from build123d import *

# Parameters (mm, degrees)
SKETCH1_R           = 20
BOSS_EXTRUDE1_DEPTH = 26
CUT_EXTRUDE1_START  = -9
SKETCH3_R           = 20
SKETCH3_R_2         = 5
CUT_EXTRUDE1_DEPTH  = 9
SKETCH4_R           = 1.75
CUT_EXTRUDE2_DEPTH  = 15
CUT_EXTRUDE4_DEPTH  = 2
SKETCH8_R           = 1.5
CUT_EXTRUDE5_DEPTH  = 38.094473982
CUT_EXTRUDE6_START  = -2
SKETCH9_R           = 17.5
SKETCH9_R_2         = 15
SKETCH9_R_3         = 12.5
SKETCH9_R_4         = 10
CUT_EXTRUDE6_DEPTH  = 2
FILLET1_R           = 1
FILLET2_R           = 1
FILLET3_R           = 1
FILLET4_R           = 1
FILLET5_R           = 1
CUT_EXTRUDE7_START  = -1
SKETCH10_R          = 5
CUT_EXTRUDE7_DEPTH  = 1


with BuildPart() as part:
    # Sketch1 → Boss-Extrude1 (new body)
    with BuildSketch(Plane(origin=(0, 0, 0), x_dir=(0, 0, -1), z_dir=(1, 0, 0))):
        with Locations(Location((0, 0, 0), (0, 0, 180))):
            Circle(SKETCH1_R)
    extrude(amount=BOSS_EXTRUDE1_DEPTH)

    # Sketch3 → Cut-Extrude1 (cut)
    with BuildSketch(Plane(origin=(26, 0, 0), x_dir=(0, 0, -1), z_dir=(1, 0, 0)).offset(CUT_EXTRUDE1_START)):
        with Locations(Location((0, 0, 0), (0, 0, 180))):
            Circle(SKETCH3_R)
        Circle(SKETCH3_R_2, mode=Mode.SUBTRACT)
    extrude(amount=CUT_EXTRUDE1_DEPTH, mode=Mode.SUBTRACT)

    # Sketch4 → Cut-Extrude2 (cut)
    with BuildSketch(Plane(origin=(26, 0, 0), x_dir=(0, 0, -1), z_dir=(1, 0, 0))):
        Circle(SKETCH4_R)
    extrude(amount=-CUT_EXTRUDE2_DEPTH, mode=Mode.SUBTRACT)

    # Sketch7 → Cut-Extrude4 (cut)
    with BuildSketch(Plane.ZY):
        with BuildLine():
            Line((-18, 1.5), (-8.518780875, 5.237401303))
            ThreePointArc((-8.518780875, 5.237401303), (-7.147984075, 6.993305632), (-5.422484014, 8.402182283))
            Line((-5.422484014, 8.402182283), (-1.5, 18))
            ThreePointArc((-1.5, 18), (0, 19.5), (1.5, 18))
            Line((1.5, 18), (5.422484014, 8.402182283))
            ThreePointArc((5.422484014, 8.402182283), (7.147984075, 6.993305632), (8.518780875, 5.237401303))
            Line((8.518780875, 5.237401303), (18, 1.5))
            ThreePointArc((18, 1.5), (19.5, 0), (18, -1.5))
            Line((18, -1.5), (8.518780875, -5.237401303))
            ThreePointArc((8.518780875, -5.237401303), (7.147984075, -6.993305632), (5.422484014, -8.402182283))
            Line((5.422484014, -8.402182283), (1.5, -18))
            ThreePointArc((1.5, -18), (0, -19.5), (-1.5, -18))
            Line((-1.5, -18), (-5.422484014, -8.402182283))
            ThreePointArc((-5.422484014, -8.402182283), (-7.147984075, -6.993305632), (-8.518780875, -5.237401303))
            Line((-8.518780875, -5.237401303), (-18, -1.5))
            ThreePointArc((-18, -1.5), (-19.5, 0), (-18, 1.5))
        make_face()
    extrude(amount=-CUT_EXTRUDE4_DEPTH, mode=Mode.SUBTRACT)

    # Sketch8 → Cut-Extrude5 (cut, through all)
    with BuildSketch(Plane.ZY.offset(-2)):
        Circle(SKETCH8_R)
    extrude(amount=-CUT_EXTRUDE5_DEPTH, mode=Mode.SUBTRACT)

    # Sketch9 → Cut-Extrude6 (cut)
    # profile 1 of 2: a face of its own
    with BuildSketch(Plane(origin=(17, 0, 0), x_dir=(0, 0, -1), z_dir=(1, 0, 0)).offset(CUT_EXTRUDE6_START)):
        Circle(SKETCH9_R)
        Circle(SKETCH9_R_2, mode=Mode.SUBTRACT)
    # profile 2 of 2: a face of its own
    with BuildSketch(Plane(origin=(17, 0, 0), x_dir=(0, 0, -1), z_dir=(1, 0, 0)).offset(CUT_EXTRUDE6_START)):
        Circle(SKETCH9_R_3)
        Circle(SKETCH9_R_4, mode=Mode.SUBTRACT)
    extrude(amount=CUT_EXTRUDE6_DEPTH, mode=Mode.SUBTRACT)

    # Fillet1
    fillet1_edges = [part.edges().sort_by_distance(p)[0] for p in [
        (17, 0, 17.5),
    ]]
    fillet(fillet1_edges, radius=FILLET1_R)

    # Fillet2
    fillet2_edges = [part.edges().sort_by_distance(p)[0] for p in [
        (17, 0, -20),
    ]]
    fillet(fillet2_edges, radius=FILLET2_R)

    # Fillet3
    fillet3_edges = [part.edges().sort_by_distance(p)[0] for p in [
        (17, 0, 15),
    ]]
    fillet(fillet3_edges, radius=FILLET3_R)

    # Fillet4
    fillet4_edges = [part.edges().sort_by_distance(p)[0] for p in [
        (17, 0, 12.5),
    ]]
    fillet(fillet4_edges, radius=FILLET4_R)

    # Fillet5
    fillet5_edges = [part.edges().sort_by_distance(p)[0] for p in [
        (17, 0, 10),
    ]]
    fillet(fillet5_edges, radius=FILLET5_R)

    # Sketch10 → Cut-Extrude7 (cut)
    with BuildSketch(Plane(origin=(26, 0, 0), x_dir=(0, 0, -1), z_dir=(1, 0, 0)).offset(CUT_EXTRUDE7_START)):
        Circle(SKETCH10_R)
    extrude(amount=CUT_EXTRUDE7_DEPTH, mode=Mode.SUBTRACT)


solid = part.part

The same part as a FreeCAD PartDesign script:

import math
import FreeCAD as App
import Part
import Sketcher
from FreeCAD import Vector


def edges_at(feature, points):
    """Names of the edges that pass closest to the given points."""
    edges = feature.Shape.Edges
    near = lambda p: min(range(len(edges)), key=lambda i: edges[i].distToShape(Part.Vertex(*p))[0])
    return sorted({f"Edge{near(p) + 1}" for p in points})

doc = App.newDocument("Part")
body = doc.addObject("PartDesign::Body", "Body")

sketch1 = doc.addObject("Sketcher::SketchObject", "Sketch")
body.addObject(sketch1)
sketch1.AttachmentSupport = (doc.YZ_Plane, [""])
sketch1.MapMode = "FlatFace"
sketch1.addGeometry(Part.Circle(Vector(0, 0, 0), Vector(0, 0, 1), 20), False)
sketch1.addConstraint(Sketcher.Constraint("Coincident", 0, 3, -1, 1))
sketch1.addConstraint(Sketcher.Constraint("Diameter", 0, 40.0))
pad1 = doc.addObject("PartDesign::Pad", "Pad")
body.addObject(pad1)
pad1.Profile = sketch1
pad1.Length = 26

sketch2 = doc.addObject("Sketcher::SketchObject", "Sketch001")
body.addObject(sketch2)
sketch2.AttachmentSupport = (doc.YZ_Plane, [""])
sketch2.MapMode = "FlatFace"
sketch2.AttachmentOffset = App.Placement(Vector(0, 0, 17), App.Rotation())
sketch2.addGeometry(Part.Circle(Vector(0, 0, 0), Vector(0, 0, 1), 20), False)
sketch2.addGeometry(Part.Circle(Vector(0, 0, 0), Vector(0, 0, 1), 5), False)
sketch2.addConstraint(Sketcher.Constraint("Coincident", 0, 3, -1, 1))
sketch2.addConstraint(Sketcher.Constraint("Coincident", 1, 3, -1, 1))
sketch2.addConstraint(Sketcher.Constraint("Diameter", 0, 40.0))
sketch2.addConstraint(Sketcher.Constraint("Diameter", 1, 10.0))
pocket1 = doc.addObject("PartDesign::Pocket", "Pocket")
body.addObject(pocket1)
pocket1.Profile = sketch2
pocket1.Length = 9
pocket1.Reversed = True

sketch3 = doc.addObject("Sketcher::SketchObject", "Sketch002")
body.addObject(sketch3)
sketch3.AttachmentSupport = (doc.YZ_Plane, [""])
sketch3.MapMode = "FlatFace"
sketch3.AttachmentOffset = App.Placement(Vector(0, 0, 26), App.Rotation())
sketch3.addGeometry(Part.Circle(Vector(0, 0, 0), Vector(0, 0, 1), 1.8), False)
sketch3.addConstraint(Sketcher.Constraint("Coincident", 0, 3, -1, 1))
sketch3.addConstraint(Sketcher.Constraint("Diameter", 0, 3.5))
pocket2 = doc.addObject("PartDesign::Pocket", "Pocket001")
body.addObject(pocket2)
pocket2.Profile = sketch3
pocket2.Length = 15

sketch4 = doc.addObject("Sketcher::SketchObject", "Sketch003")
body.addObject(sketch4)
sketch4.AttachmentSupport = (doc.YZ_Plane, [""])
sketch4.MapMode = "FlatFace"
sketch4.addGeometry(Part.LineSegment(Vector(5.2, -8.5, 0), Vector(1.5, -18, 0)), False)
sketch4.addGeometry(Part.ArcOfCircle(Part.Circle(Vector(0, -18, 0), Vector(0, 0, 1), 1.5), math.radians(180), math.radians(360)), False)
sketch4.addGeometry(Part.LineSegment(Vector(-1.5, -18, 0), Vector(-5.2, -8.5, 0)), False)
sketch4.addGeometry(Part.ArcOfCircle(Part.Circle(Vector(0, 0, 0), Vector(0, 0, 1), 10), math.radians(-147), math.radians(-122)), False)
sketch4.addGeometry(Part.LineSegment(Vector(-8.4, -5.4, 0), Vector(-18, -1.5, 0)), False)
sketch4.addGeometry(Part.ArcOfCircle(Part.Circle(Vector(-18, 0, 0), Vector(0, 0, 1), 1.5), math.radians(90), math.radians(270)), False)
sketch4.addGeometry(Part.LineSegment(Vector(-18, 1.5, 0), Vector(-8.4, 5.4, 0)), False)
sketch4.addGeometry(Part.ArcOfCircle(Part.Circle(Vector(0, 0, 0), Vector(0, 0, 1), 10), math.radians(122), math.radians(147)), False)
sketch4.addGeometry(Part.LineSegment(Vector(-5.2, 8.5, 0), Vector(-1.5, 18, 0)), False)
sketch4.addGeometry(Part.ArcOfCircle(Part.Circle(Vector(0, 18, 0), Vector(0, 0, 1), 1.5), math.radians(0), math.radians(180)), False)
sketch4.addGeometry(Part.LineSegment(Vector(1.5, 18, 0), Vector(5.2, 8.5, 0)), False)
sketch4.addGeometry(Part.ArcOfCircle(Part.Circle(Vector(0, 0, 0), Vector(0, 0, 1), 10), math.radians(33), math.radians(58)), False)
sketch4.addGeometry(Part.LineSegment(Vector(8.4, 5.4, 0), Vector(18, 1.5, 0)), False)
sketch4.addGeometry(Part.ArcOfCircle(Part.Circle(Vector(18, 0, 0), Vector(0, 0, 1), 1.5), math.radians(-90), math.radians(90)), False)
sketch4.addGeometry(Part.LineSegment(Vector(18, -1.5, 0), Vector(8.4, -5.4, 0)), False)
sketch4.addGeometry(Part.ArcOfCircle(Part.Circle(Vector(0, 0, 0), Vector(0, 0, 1), 10), math.radians(-58), math.radians(-33)), False)
sketch4.addConstraint(Sketcher.Constraint("Coincident", 0, 2, 1, 2))
sketch4.addConstraint(Sketcher.Constraint("Coincident", 1, 1, 2, 1))
sketch4.addConstraint(Sketcher.Constraint("Coincident", 2, 2, 3, 2))
sketch4.addConstraint(Sketcher.Constraint("Coincident", 3, 1, 4, 1))
sketch4.addConstraint(Sketcher.Constraint("Coincident", 4, 2, 5, 2))
sketch4.addConstraint(Sketcher.Constraint("Coincident", 5, 1, 6, 1))
sketch4.addConstraint(Sketcher.Constraint("Coincident", 6, 2, 7, 2))
sketch4.addConstraint(Sketcher.Constraint("Coincident", 7, 1, 8, 1))
sketch4.addConstraint(Sketcher.Constraint("Coincident", 8, 2, 9, 2))
sketch4.addConstraint(Sketcher.Constraint("Coincident", 9, 1, 10, 1))
sketch4.addConstraint(Sketcher.Constraint("Coincident", 10, 2, 11, 2))
sketch4.addConstraint(Sketcher.Constraint("Coincident", 11, 1, 12, 1))
sketch4.addConstraint(Sketcher.Constraint("Coincident", 12, 2, 13, 2))
sketch4.addConstraint(Sketcher.Constraint("Coincident", 13, 1, 14, 1))
sketch4.addConstraint(Sketcher.Constraint("Coincident", 14, 2, 15, 2))
sketch4.addConstraint(Sketcher.Constraint("Coincident", 15, 1, 0, 1))
sketch4.addConstraint(Sketcher.Constraint("Coincident", 3, 3, -1, 1))
sketch4.addConstraint(Sketcher.Constraint("Coincident", 7, 3, -1, 1))
sketch4.addConstraint(Sketcher.Constraint("Coincident", 11, 3, -1, 1))
sketch4.addConstraint(Sketcher.Constraint("Coincident", 15, 3, -1, 1))
sketch4.addConstraint(Sketcher.Constraint("Equal", 1, 5))
sketch4.addConstraint(Sketcher.Constraint("Equal", 3, 7))
sketch4.addConstraint(Sketcher.Constraint("Equal", 5, 9))
sketch4.addConstraint(Sketcher.Constraint("Equal", 7, 11))
sketch4.addConstraint(Sketcher.Constraint("Equal", 9, 13))
sketch4.addConstraint(Sketcher.Constraint("Equal", 11, 15))
sketch4.addConstraint(Sketcher.Constraint("Symmetric", 1, 3, 9, 3, -1, 1))
sketch4.addConstraint(Sketcher.Constraint("Symmetric", 5, 3, 13, 3, -1, 1))
sketch4.addConstraint(Sketcher.Constraint("Symmetric", 0, 2, 1, 1, -2))
sketch4.addConstraint(Sketcher.Constraint("Symmetric", 5, 1, 12, 2, -2))
sketch4.addConstraint(Sketcher.Constraint("Parallel", 0, 8))
sketch4.addConstraint(Sketcher.Constraint("Parallel", 2, 10))
sketch4.addConstraint(Sketcher.Constraint("Parallel", 4, 12))
sketch4.addConstraint(Sketcher.Constraint("Parallel", 6, 14))
sketch4.addConstraint(Sketcher.Constraint("Horizontal", 1, 3, 0, 2))
sketch4.addConstraint(Sketcher.Constraint("Horizontal", 9, 3, 8, 2))
sketch4.addConstraint(Sketcher.Constraint("Horizontal", 8, 2, 9, 1))
sketch4.addConstraint(Sketcher.Constraint("Horizontal", 7, 1, 10, 2))
sketch4.addConstraint(Sketcher.Constraint("Horizontal", 6, 2, 11, 1))
sketch4.addConstraint(Sketcher.Constraint("Horizontal", 3, 1, 14, 2))
sketch4.addConstraint(Sketcher.Constraint("Vertical", 5, 3, 4, 2))
sketch4.addConstraint(Sketcher.Constraint("Vertical", 4, 2, 5, 1))
sketch4.addConstraint(Sketcher.Constraint("Radius", 3, 10.0))
sketch4.addConstraint(Sketcher.Constraint("Radius", 1, 1.5))
sketch4.addConstraint(Sketcher.Constraint("DistanceY", 1, 3, -1, 1, 18.0))
sketch4.addConstraint(Sketcher.Constraint("DistanceX", 5, 3, -1, 1, 18.0))
sketch4.addConstraint(Sketcher.Constraint("DistanceX", 2, 2, -1, 1, 5.237401))
sketch4.addConstraint(Sketcher.Constraint("DistanceX", 3, 1, 2, 2, 3.164781))
pocket3 = doc.addObject("PartDesign::Pocket", "Pocket002")
body.addObject(pocket3)
pocket3.Profile = sketch4
pocket3.Length = 2
pocket3.Reversed = True

sketch5 = doc.addObject("Sketcher::SketchObject", "Sketch004")
body.addObject(sketch5)
sketch5.AttachmentSupport = (doc.YZ_Plane, [""])
sketch5.MapMode = "FlatFace"
sketch5.AttachmentOffset = App.Placement(Vector(0, 0, 2), App.Rotation())
sketch5.addGeometry(Part.Circle(Vector(0, 0, 0), Vector(0, 0, 1), 1.5), False)
sketch5.addConstraint(Sketcher.Constraint("Coincident", 0, 3, -1, 1))
sketch5.addConstraint(Sketcher.Constraint("Diameter", 0, 3.0))
pocket4 = doc.addObject("PartDesign::Pocket", "Pocket003")
body.addObject(pocket4)
pocket4.Profile = sketch5
pocket4.Type = "ThroughAll"
pocket4.Reversed = True

sketch6 = doc.addObject("Sketcher::SketchObject", "Sketch005")
body.addObject(sketch6)
sketch6.AttachmentSupport = (doc.YZ_Plane, [""])
sketch6.MapMode = "FlatFace"
sketch6.AttachmentOffset = App.Placement(Vector(0, 0, 15), App.Rotation())
sketch6.addGeometry(Part.Circle(Vector(0, 0, 0), Vector(0, 0, 1), 18), False)
sketch6.addGeometry(Part.Circle(Vector(0, 0, 0), Vector(0, 0, 1), 15), False)
sketch6.addGeometry(Part.Circle(Vector(0, 0, 0), Vector(0, 0, 1), 12), False)
sketch6.addGeometry(Part.Circle(Vector(0, 0, 0), Vector(0, 0, 1), 10), False)
sketch6.addConstraint(Sketcher.Constraint("Coincident", 0, 3, -1, 1))
sketch6.addConstraint(Sketcher.Constraint("Coincident", 1, 3, -1, 1))
sketch6.addConstraint(Sketcher.Constraint("Coincident", 2, 3, -1, 1))
sketch6.addConstraint(Sketcher.Constraint("Coincident", 3, 3, -1, 1))
sketch6.addConstraint(Sketcher.Constraint("Diameter", 0, 35.0))
sketch6.addConstraint(Sketcher.Constraint("Diameter", 1, 30.0))
sketch6.addConstraint(Sketcher.Constraint("Diameter", 2, 25.0))
sketch6.addConstraint(Sketcher.Constraint("Diameter", 3, 20.0))
pocket5 = doc.addObject("PartDesign::Pocket", "Pocket004")
body.addObject(pocket5)
pocket5.Profile = sketch6
pocket5.Length = 2
pocket5.Reversed = True
doc.recompute()

fillet = doc.addObject("PartDesign::Fillet", "Fillet")
body.addObject(fillet)
fillet.Base = (pocket5, edges_at(pocket5, [(17, 0, 17.5)]))
fillet.Radius = 1
doc.recompute()

fillet2 = doc.addObject("PartDesign::Fillet", "Fillet001")
body.addObject(fillet2)
fillet2.Base = (fillet, edges_at(fillet, [(17, 0, -20)]))
fillet2.Radius = 1
doc.recompute()

fillet3 = doc.addObject("PartDesign::Fillet", "Fillet002")
body.addObject(fillet3)
fillet3.Base = (fillet2, edges_at(fillet2, [(17, 0, 15)]))
fillet3.Radius = 1
doc.recompute()

fillet4 = doc.addObject("PartDesign::Fillet", "Fillet003")
body.addObject(fillet4)
fillet4.Base = (fillet3, edges_at(fillet3, [(17, 0, 12.5)]))
fillet4.Radius = 1
doc.recompute()

fillet5 = doc.addObject("PartDesign::Fillet", "Fillet004")
body.addObject(fillet5)
fillet5.Base = (fillet4, edges_at(fillet4, [(17, 0, 10)]))
fillet5.Radius = 1

sketch7 = doc.addObject("Sketcher::SketchObject", "Sketch006")
body.addObject(sketch7)
sketch7.AttachmentSupport = (doc.YZ_Plane, [""])
sketch7.MapMode = "FlatFace"
sketch7.AttachmentOffset = App.Placement(Vector(0, 0, 25), App.Rotation())
sketch7.addGeometry(Part.Circle(Vector(0, 0, 0), Vector(0, 0, 1), 5), False)
sketch7.addConstraint(Sketcher.Constraint("Coincident", 0, 3, -1, 1))
sketch7.addConstraint(Sketcher.Constraint("Diameter", 0, 10.0))
pocket6 = doc.addObject("PartDesign::Pocket", "Pocket005")
body.addObject(pocket6)
pocket6.Profile = sketch7
pocket6.Length = 1
pocket6.Reversed = True

doc.recompute()
